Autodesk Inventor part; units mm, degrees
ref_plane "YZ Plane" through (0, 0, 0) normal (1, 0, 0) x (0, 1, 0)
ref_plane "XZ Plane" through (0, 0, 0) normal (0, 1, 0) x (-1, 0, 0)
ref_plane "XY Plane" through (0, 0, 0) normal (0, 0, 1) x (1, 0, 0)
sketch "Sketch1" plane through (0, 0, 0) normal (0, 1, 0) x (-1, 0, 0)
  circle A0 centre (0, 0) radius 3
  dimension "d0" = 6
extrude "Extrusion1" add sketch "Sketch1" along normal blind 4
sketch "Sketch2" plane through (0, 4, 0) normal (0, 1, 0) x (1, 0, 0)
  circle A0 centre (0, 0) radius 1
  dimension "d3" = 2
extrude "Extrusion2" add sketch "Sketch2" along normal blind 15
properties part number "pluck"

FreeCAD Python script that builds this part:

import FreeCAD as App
import Part
import Sketcher
from FreeCAD import Vector

doc = App.newDocument("Part")
body = doc.addObject("PartDesign::Body", "Body")

# Sketch on XZ plane
sketch1 = body.newObject("Sketcher::SketchObject", "Sketch")
sketch1.AttachmentSupport = (doc.getObject("XZ_Plane"), [""])
sketch1.MapMode = "FlatFace"
sketch1.addGeometry(Part.Circle(Vector(0, 0, 0), Vector(0, 0, 1), 3), False)
sketch1.addConstraint([
    Sketcher.Constraint("Coincident", 0, 3, -1, 1),
    Sketcher.Constraint("Diameter", 0, 6.0),
])
pad1 = body.newObject("PartDesign::Pad", "Pad")
pad1.Profile = sketch1
pad1.Length = 4
pad1.Reversed = True

# Sketch on XZ plane
sketch2 = body.newObject("Sketcher::SketchObject", "Sketch001")
sketch2.AttachmentSupport = (doc.getObject("XZ_Plane"), [""])
sketch2.MapMode = "FlatFace"
sketch2.AttachmentOffset = App.Placement(Vector(0, 0, -4), App.Rotation())
sketch2.addGeometry(Part.Circle(Vector(0, 0, 0), Vector(0, 0, 1), 1), False)
sketch2.addConstraint([
    Sketcher.Constraint("Coincident", 0, 3, -1, 1),
    Sketcher.Constraint("Diameter", 0, 2.0),
])
pad2 = body.newObject("PartDesign::Pad", "Pad001")
pad2.Profile = sketch2
pad2.Length = 15
pad2.Reversed = True

doc.recompute()
